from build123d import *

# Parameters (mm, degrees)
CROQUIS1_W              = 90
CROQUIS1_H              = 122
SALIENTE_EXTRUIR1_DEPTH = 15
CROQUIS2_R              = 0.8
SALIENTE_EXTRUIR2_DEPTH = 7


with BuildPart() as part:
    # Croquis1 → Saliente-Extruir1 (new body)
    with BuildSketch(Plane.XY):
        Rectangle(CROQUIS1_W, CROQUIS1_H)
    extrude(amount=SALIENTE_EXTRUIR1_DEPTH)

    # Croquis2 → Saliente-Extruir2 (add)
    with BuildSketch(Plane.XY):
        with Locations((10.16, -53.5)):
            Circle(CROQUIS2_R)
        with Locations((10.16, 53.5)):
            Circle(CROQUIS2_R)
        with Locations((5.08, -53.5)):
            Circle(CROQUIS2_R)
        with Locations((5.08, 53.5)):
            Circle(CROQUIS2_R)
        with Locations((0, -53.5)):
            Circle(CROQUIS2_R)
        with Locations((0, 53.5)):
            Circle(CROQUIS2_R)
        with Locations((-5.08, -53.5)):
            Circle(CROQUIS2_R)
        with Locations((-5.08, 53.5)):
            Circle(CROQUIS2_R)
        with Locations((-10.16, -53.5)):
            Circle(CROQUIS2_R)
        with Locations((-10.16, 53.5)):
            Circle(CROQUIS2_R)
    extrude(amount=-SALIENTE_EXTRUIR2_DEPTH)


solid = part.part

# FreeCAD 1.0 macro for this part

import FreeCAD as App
import Part
import Sketcher

doc = App.newDocument("Part")
body = doc.addObject("PartDesign::Body", "Body")

# Sketch on XY plane
sketch1 = body.newObject("Sketcher::SketchObject", "Sketch")
sketch1.AttachmentSupport = (doc.getObject("XY_Plane"), [""])
sketch1.MapMode = "FlatFace"
sketch1.addGeometry([
    Part.LineSegment(App.Vector(-45, 61, 0), App.Vector(-45, -61, 0)),
    Part.LineSegment(App.Vector(-45, -61, 0), App.Vector(45, -61, 0)),
    Part.LineSegment(App.Vector(45, -61, 0), App.Vector(45, 61, 0)),
    Part.LineSegment(App.Vector(45, 61, 0), App.Vector(-45, 61, 0)),
], False)
sketch1.addConstraint([
    Sketcher.Constraint("Coincident", 0, 2, 1, 1),
    Sketcher.Constraint("Coincident", 1, 2, 2, 1),
    Sketcher.Constraint("Coincident", 2, 2, 3, 1),
    Sketcher.Constraint("Coincident", 3, 2, 0, 1),
    Sketcher.Constraint("Vertical", 0),
    Sketcher.Constraint("Horizontal", 1),
    Sketcher.Constraint("Vertical", 2),
    Sketcher.Constraint("Horizontal", 3),
    Sketcher.Constraint("Symmetric", 0, 2, 2, 2, -1, 1),
    Sketcher.Constraint("DistanceX", 1, 1, 1, 2, 90.0),
    Sketcher.Constraint("DistanceY", 0, 2, 0, 1, 122.0),
])
pad1 = body.newObject("PartDesign::Pad", "Pad")
pad1.Profile = sketch1
pad1.Length = 15

# Sketch on XY plane
sketch2 = body.newObject("Sketcher::SketchObject", "Sketch001")
sketch2.AttachmentSupport = (doc.getObject("XY_Plane"), [""])
sketch2.MapMode = "FlatFace"
sketch2.addGeometry([
    Part.Circle(App.Vector(10.16, -53.5, 0), App.Vector(0, 0, 1), 0.8),  # 0
    Part.Circle(App.Vector(10.16, 53.5, 0), App.Vector(0, 0, 1), 0.8),  # 1
    Part.Circle(App.Vector(5.08, -53.5, 0), App.Vector(0, 0, 1), 0.8),  # 2
    Part.Circle(App.Vector(5.08, 53.5, 0), App.Vector(0, 0, 1), 0.8),  # 3
    Part.Circle(App.Vector(0, -53.5, 0), App.Vector(0, 0, 1), 0.8),  # 4
    Part.Circle(App.Vector(0, 53.5, 0), App.Vector(0, 0, 1), 0.8),  # 5
    Part.Circle(App.Vector(-5.08, -53.5, 0), App.Vector(0, 0, 1), 0.8),  # 6
    Part.Circle(App.Vector(-5.08, 53.5, 0), App.Vector(0, 0, 1), 0.8),  # 7
    Part.Circle(App.Vector(-10.16, -53.5, 0), App.Vector(0, 0, 1), 0.8),  # 8
    Part.Circle(App.Vector(-10.16, 53.5, 0), App.Vector(0, 0, 1), 0.8),  # 9
], False)
sketch2.addConstraint([
    Sketcher.Constraint("Equal", 0, 1),
    Sketcher.Constraint("Equal", 1, 2),
    Sketcher.Constraint("Equal", 2, 3),
    Sketcher.Constraint("Equal", 3, 4),
    Sketcher.Constraint("Equal", 4, 5),
    Sketcher.Constraint("Equal", 5, 6),
    Sketcher.Constraint("Equal", 6, 7),
    Sketcher.Constraint("Equal", 7, 8),
    Sketcher.Constraint("Equal", 8, 9),
    Sketcher.Constraint("Symmetric", 4, 3, 5, 3, -1, 1),
    Sketcher.Constraint("Symmetric", 3, 3, 6, 3, -1, 1),
    Sketcher.Constraint("Symmetric", 2, 3, 7, 3, -1, 1),
    Sketcher.Constraint("Symmetric", 1, 3, 8, 3, -1, 1),
    Sketcher.Constraint("Symmetric", 0, 3, 9, 3, -1, 1),
    Sketcher.Constraint("Symmetric", 2, 3, 6, 3, -2),
    Sketcher.Constraint("Symmetric", 0, 3, 8, 3, -2),
    Sketcher.Constraint("PointOnObject", 4, 3, -2),
    Sketcher.Constraint("Horizontal", 0, 3, 2, 3),
    Sketcher.Constraint("Horizontal", 2, 3, 4, 3),
    Sketcher.Constraint("Diameter", 0, 1.6),
    Sketcher.Constraint("DistanceY", 0, 3, 1, 3, 107.0),
    Sketcher.Constraint("DistanceX", -1, 1, 0, 3, 10.16),
    Sketcher.Constraint("DistanceX", -1, 1, 2, 3, 5.08),
])
pad2 = body.newObject("PartDesign::Pad", "Pad001")
pad2.Profile = sketch2
pad2.Length = 7
pad2.Reversed = True

doc.recompute()
